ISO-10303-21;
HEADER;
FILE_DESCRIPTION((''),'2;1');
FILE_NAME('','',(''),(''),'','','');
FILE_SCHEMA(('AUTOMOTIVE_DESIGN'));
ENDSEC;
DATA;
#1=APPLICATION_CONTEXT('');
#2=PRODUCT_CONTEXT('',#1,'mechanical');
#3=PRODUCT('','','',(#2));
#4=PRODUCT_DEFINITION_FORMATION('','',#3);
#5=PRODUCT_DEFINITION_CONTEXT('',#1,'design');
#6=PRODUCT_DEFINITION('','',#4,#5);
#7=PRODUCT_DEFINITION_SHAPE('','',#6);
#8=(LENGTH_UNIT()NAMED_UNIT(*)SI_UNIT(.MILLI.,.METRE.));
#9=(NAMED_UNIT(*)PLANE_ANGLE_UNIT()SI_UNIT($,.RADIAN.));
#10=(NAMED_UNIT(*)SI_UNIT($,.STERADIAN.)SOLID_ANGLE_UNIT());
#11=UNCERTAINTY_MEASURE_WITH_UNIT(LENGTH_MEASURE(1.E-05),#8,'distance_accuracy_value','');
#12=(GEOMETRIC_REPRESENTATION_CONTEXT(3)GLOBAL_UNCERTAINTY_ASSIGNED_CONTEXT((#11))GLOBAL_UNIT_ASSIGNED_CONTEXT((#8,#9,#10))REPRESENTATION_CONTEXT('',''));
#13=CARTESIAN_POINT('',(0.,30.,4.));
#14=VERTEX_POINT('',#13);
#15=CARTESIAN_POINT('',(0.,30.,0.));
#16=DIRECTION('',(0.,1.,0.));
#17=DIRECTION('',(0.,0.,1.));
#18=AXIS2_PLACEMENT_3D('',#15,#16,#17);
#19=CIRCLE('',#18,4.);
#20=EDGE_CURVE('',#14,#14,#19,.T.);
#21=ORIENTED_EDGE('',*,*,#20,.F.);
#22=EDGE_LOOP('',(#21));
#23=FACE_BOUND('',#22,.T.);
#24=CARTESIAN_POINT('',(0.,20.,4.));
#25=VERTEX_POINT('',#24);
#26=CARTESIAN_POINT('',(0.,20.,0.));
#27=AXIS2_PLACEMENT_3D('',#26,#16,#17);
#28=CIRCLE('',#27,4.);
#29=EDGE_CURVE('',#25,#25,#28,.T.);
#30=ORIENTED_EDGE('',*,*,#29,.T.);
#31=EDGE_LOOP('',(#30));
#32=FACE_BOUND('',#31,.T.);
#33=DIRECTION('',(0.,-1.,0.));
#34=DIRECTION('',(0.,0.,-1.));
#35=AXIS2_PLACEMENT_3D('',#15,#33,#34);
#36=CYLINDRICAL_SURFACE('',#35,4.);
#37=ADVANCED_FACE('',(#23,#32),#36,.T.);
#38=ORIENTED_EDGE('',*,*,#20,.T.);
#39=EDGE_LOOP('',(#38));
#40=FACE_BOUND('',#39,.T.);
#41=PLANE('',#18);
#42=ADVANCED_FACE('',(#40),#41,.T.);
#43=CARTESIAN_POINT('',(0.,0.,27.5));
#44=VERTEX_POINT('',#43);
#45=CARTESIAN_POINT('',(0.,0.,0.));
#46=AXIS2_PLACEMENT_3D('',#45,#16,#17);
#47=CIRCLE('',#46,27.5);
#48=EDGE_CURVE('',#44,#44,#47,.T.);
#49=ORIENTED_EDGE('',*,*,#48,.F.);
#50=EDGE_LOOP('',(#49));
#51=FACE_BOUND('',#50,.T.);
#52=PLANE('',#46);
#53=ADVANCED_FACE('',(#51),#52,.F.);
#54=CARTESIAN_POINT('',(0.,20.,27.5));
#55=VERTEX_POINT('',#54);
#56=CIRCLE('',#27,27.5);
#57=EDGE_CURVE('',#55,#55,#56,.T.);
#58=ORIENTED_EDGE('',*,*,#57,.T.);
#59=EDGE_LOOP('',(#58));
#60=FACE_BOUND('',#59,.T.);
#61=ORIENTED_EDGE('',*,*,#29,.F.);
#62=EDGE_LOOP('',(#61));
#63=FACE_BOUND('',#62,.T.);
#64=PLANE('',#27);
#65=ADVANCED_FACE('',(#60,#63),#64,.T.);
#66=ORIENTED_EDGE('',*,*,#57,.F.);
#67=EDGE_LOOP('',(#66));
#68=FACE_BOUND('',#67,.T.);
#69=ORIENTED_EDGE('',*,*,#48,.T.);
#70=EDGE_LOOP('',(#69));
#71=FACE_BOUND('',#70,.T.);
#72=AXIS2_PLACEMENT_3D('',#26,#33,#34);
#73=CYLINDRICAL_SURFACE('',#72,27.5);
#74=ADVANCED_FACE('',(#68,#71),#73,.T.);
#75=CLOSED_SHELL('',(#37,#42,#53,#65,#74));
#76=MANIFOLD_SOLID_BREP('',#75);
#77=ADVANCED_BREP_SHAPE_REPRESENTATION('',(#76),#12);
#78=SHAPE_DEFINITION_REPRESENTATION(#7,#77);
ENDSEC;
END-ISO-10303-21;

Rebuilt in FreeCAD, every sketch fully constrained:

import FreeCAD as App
import Part
import Sketcher

doc = App.newDocument("Part")
params = doc.addObject("Spreadsheet::Sheet", "Params")
for row, (alias, value) in enumerate([
    ("sketch1_diameter", "55 mm"),
    ("pad1_length", "20 mm"),
    ("sketch2_diameter", "8 mm"),
    ("pad2_length", "10 mm"),
], start=1):
    params.set(f"A{row}", alias)
    params.set(f"B{row}", "=" + value)
    params.setAlias(f"B{row}", alias)

body = doc.addObject("PartDesign::Body", "Body")

sketch1 = body.newObject("Sketcher::SketchObject", "Sketch")
sketch1.AttachmentSupport = (doc.getObject("XZ_Plane"), [""])
sketch1.MapMode = "FlatFace"
sketch1.addGeometry(Part.Circle(App.Vector(0, 0, 0), App.Vector(0, 0, 1), 27.5), False)
sketch1.addConstraint([
    Sketcher.Constraint("Coincident", 0, 3, -1, 1),
    Sketcher.Constraint("Diameter", 0, 55.0),
])
sketch1.setExpression("Constraints[1]", "Params.sketch1_diameter")
pad1 = body.newObject("PartDesign::Pad", "Pad")
pad1.Profile = sketch1
pad1.setExpression("Length", "Params.pad1_length")
pad1.Reversed = True

sketch2 = body.newObject("Sketcher::SketchObject", "Sketch001")
sketch2.AttachmentSupport = (doc.getObject("XZ_Plane"), [""])
sketch2.MapMode = "FlatFace"
sketch2.AttachmentOffset = App.Placement(App.Vector(0, 0, -20), App.Rotation())
sketch2.addGeometry(Part.Circle(App.Vector(0, 0, 0), App.Vector(0, 0, 1), 4), False)
sketch2.addConstraint([
    Sketcher.Constraint("Coincident", 0, 3, -1, 1),
    Sketcher.Constraint("Diameter", 0, 8.0),
])
sketch2.setExpression("Constraints[1]", "Params.sketch2_diameter")
pad2 = body.newObject("PartDesign::Pad", "Pad001")
pad2.Profile = sketch2
pad2.setExpression("Length", "Params.pad2_length")
pad2.Reversed = True

doc.recompute()
